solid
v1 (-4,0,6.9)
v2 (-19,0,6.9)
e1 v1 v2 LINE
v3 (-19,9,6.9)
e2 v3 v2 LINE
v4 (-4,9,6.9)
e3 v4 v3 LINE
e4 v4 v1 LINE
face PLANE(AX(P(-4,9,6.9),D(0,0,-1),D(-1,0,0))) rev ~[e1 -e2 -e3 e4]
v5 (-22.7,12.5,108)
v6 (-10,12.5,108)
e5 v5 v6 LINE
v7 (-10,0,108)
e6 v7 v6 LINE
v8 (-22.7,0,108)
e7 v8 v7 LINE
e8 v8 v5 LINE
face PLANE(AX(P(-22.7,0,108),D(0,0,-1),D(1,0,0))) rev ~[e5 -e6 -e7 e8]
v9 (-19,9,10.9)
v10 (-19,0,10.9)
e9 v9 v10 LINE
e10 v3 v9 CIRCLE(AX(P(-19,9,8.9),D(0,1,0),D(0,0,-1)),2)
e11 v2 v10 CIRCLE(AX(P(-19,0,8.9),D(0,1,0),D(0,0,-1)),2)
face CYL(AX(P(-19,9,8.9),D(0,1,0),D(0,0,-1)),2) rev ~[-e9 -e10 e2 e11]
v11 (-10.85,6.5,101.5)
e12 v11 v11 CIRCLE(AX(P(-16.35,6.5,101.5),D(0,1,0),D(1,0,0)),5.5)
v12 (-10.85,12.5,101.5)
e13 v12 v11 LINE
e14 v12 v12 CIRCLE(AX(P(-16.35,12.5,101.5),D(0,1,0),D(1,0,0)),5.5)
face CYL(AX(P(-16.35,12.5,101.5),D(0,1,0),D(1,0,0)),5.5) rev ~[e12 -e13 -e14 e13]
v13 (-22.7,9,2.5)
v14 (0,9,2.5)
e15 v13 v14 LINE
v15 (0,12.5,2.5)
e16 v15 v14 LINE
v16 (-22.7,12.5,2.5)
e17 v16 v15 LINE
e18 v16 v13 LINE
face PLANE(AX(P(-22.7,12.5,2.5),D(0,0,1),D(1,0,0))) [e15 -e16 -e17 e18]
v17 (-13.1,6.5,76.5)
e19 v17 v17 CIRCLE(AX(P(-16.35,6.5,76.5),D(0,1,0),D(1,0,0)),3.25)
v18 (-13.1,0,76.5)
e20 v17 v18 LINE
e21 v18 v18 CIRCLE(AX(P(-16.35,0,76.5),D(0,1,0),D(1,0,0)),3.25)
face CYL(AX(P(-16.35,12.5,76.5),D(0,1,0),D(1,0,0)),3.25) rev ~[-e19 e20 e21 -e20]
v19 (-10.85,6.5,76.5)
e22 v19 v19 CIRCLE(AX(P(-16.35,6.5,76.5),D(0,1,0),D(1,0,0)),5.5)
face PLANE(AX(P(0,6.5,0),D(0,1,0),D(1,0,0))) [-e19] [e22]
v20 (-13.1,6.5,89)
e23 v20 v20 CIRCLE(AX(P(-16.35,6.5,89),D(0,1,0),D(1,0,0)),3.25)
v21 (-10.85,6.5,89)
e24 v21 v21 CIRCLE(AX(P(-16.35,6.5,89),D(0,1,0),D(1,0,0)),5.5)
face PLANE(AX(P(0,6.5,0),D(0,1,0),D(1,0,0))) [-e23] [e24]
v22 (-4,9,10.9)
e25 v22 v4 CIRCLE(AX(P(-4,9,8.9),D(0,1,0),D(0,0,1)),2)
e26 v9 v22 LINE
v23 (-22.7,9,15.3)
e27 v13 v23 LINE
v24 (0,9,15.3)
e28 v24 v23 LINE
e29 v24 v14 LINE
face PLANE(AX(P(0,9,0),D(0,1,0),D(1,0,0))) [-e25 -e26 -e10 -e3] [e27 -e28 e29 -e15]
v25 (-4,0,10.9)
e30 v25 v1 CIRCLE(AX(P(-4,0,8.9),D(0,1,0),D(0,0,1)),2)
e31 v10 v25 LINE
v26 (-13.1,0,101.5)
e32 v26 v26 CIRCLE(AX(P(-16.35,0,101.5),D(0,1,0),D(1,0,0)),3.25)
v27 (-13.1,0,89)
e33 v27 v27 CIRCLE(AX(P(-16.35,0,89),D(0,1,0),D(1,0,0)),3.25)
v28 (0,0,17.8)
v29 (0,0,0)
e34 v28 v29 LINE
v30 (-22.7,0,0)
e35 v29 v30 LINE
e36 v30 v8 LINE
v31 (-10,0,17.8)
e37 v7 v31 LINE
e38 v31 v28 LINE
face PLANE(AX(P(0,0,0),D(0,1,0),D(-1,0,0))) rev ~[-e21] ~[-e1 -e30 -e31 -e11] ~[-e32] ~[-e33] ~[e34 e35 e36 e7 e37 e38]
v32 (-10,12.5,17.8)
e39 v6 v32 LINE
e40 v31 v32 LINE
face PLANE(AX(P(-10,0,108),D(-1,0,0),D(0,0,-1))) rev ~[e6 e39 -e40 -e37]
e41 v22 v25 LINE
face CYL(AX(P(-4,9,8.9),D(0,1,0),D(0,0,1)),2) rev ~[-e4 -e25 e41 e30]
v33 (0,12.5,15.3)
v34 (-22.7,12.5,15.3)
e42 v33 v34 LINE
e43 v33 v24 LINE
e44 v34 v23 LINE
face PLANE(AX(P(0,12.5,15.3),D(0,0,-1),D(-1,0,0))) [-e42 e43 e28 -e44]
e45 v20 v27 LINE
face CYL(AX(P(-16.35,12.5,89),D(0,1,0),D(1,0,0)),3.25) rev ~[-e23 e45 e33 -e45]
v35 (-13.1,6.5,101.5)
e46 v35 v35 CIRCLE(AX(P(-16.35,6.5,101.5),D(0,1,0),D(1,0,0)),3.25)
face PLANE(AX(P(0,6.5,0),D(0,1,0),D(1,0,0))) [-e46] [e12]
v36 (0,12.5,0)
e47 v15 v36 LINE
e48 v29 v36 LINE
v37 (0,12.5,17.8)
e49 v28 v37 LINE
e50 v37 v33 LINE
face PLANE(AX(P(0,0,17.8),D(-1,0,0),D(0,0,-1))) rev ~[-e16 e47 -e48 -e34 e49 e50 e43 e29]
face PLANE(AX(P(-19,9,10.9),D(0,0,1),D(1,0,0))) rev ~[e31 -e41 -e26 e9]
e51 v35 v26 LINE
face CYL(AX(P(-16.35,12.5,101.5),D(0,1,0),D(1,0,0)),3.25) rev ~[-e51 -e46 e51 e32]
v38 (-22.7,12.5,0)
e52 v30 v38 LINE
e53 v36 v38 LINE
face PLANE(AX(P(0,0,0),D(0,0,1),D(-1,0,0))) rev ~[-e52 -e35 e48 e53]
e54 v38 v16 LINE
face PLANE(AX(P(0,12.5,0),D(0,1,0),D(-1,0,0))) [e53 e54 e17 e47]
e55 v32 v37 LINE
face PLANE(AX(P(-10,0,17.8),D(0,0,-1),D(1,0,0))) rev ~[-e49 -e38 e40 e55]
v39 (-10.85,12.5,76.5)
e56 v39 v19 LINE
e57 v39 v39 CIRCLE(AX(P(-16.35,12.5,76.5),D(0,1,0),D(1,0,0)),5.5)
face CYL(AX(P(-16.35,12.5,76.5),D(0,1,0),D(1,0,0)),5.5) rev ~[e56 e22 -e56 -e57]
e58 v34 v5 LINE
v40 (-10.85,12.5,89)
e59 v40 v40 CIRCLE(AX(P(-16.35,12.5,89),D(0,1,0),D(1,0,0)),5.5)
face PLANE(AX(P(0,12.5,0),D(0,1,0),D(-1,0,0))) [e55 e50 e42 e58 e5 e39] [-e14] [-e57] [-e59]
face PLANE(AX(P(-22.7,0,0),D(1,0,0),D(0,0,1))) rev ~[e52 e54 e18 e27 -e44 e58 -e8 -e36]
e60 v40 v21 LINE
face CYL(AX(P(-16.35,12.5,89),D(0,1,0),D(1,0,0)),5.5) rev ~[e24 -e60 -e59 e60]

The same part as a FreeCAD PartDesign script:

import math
import FreeCAD as App
import Part
import Sketcher
Q = App.Units.Quantity

doc = App.newDocument("Part")
body = doc.addObject("PartDesign::Body", "Body")

# Sketch on XZ plane
sketch1 = body.newObject("Sketcher::SketchObject", "Sketch")
sketch1.AttachmentSupport = (doc.getObject("XZ_Plane"), [""])
sketch1.MapMode = "FlatFace"
sketch1.addGeometry([
    Part.LineSegment(App.Vector(0, 17.8, 0), App.Vector(0, 0, 0)),  # 0
    Part.LineSegment(App.Vector(0, 0, 0), App.Vector(-22.7, 0, 0)),  # 1
    Part.LineSegment(App.Vector(-22.7, 0, 0), App.Vector(-22.7, 108, 0)),  # 2
    Part.LineSegment(App.Vector(-22.7, 108, 0), App.Vector(-10, 108, 0)),  # 3
    Part.LineSegment(App.Vector(-10, 108, 0), App.Vector(-10, 17.8, 0)),  # 4
    Part.LineSegment(App.Vector(-10, 17.8, 0), App.Vector(0, 17.8, 0)),  # 5
], False)
sketch1.addConstraint([
    Sketcher.Constraint("Coincident", 0, 2, 1, 1),
    Sketcher.Constraint("Coincident", 1, 2, 2, 1),
    Sketcher.Constraint("Coincident", 2, 2, 3, 1),
    Sketcher.Constraint("Coincident", 3, 2, 4, 1),
    Sketcher.Constraint("Coincident", 4, 2, 5, 1),
    Sketcher.Constraint("Coincident", 5, 2, 0, 1),
    Sketcher.Constraint("Vertical", 0),
    Sketcher.Constraint("Horizontal", 1),
    Sketcher.Constraint("Vertical", 2),
    Sketcher.Constraint("Horizontal", 3),
    Sketcher.Constraint("Vertical", 4),
    Sketcher.Constraint("Horizontal", 5),
    Sketcher.Constraint("Coincident", 0, 2, -1, 1),
    Sketcher.Constraint("DistanceY", 2, 1, 2, 2, Q("108 mm")),
    Sketcher.Constraint("DistanceX", 1, 2, 1, 1, Q("22.7 mm")),
    Sketcher.Constraint("DistanceX", 3, 1, 3, 2, Q("12.7 mm")),
    Sketcher.Constraint("DistanceY", 4, 2, 4, 1, Q("90.2 mm")),
])
pad1 = body.newObject("PartDesign::Pad", "Pad")
pad1.Profile = sketch1
pad1.Length = 12.5
pad1.Reversed = True

# Sketch on XZ plane
sketch2 = body.newObject("Sketcher::SketchObject", "Sketch001")
sketch2.AttachmentSupport = (doc.getObject("XZ_Plane"), [""])
sketch2.MapMode = "FlatFace"
sketch2.AttachmentOffset = App.Placement(App.Vector(0, 0, -12.5), App.Rotation())
sketch2.addGeometry([
    Part.LineSegment(App.Vector(-22.7, 15.3, 0), App.Vector(0, 15.3, 0)),
    Part.LineSegment(App.Vector(0, 15.3, 0), App.Vector(0, 2.5, 0)),
    Part.LineSegment(App.Vector(0, 2.5, 0), App.Vector(-22.7, 2.5, 0)),
    Part.LineSegment(App.Vector(-22.7, 2.5, 0), App.Vector(-22.7, 15.3, 0)),
], False)
sketch2.addConstraint([
    Sketcher.Constraint("Coincident", 0, 2, 1, 1),
    Sketcher.Constraint("Coincident", 1, 2, 2, 1),
    Sketcher.Constraint("Coincident", 2, 2, 3, 1),
    Sketcher.Constraint("Coincident", 3, 2, 0, 1),
    Sketcher.Constraint("Horizontal", 0),
    Sketcher.Constraint("Vertical", 1),
    Sketcher.Constraint("Horizontal", 2),
    Sketcher.Constraint("Vertical", 3),
    Sketcher.Constraint("PointOnObject", 0, 2, -2),
    Sketcher.Constraint("DistanceY", 1, 2, 1, 1, Q("12.8 mm")),
    Sketcher.Constraint("DistanceX", 0, 1, 0, 2, Q("22.7 mm")),
    Sketcher.Constraint("DistanceY", -1, 1, 0, 2, Q("15.3 mm")),
])
pocket1 = body.newObject("PartDesign::Pocket", "Pocket")
pocket1.Profile = sketch2
pocket1.Length = 3.5
pocket1.Reversed = True

# Sketch on XZ plane
sketch3 = body.newObject("Sketcher::SketchObject", "Sketch002")
sketch3.AttachmentSupport = (doc.getObject("XZ_Plane"), [""])
sketch3.MapMode = "FlatFace"
sketch3.AttachmentOffset = App.Placement(App.Vector(0, 0, -9), App.Rotation())
sketch3.addGeometry([
    Part.LineSegment(App.Vector(-19, 10.9, 0), App.Vector(-4, 10.9, 0)),
    Part.ArcOfCircle(Part.Circle(App.Vector(-4, 8.9, 0), App.Vector(0, 0, 1), 2), math.radians(-90), math.radians(90)),
    Part.LineSegment(App.Vector(-4, 6.9, 0), App.Vector(-19, 6.9, 0)),
    Part.ArcOfCircle(Part.Circle(App.Vector(-19, 8.9, 0), App.Vector(0, 0, 1), 2), math.radians(90), math.radians(270)),
], False)
sketch3.addConstraint([
    Sketcher.Constraint("Tangent", 0, 2, 1, 2),
    Sketcher.Constraint("Tangent", 1, 1, 2, 1),
    Sketcher.Constraint("Tangent", 2, 2, 3, 2),
    Sketcher.Constraint("Tangent", 3, 1, 0, 1),
    Sketcher.Constraint("Horizontal", 0),
    Sketcher.Constraint("Horizontal", 2),
    Sketcher.Constraint("Radius", 1, Q("2 mm")),
    Sketcher.Constraint("DistanceX", 0, 1, 0, 2, Q("15 mm")),
    Sketcher.Constraint("DistanceX", 1, 3, -1, 1, Q("4 mm")),
    Sketcher.Constraint("DistanceY", -1, 1, 1, 3, Q("8.9 mm")),
])
pocket2 = body.newObject("PartDesign::Pocket", "Pocket001")
pocket2.Profile = sketch3
pocket2.Type = "ThroughAll"
pocket2.Reversed = True

# Sketch on XZ plane
sketch4 = body.newObject("Sketcher::SketchObject", "Sketch003")
sketch4.AttachmentSupport = (doc.getObject("XZ_Plane"), [""])
sketch4.MapMode = "FlatFace"
sketch4.AttachmentOffset = App.Placement(App.Vector(0, 0, -12.5), App.Rotation())
sketch4.addGeometry([
    Part.Circle(App.Vector(-16.35, 76.5, 0), App.Vector(0, 0, 1), 3.25),
    Part.Circle(App.Vector(-16.35, 89, 0), App.Vector(0, 0, 1), 3.25),
    Part.Circle(App.Vector(-16.35, 101.5, 0), App.Vector(0, 0, 1), 3.25),
], False)
sketch4.addConstraint([
    Sketcher.Constraint("Equal", 0, 1),
    Sketcher.Constraint("Equal", 1, 2),
    Sketcher.Constraint("Vertical", 0, 3, 1, 3),
    Sketcher.Constraint("Vertical", 1, 3, 2, 3),
    Sketcher.Constraint("Diameter", 0, Q("6.5 mm")),
    Sketcher.Constraint("DistanceY", 0, 3, 1, 3, Q("12.5 mm")),
    Sketcher.Constraint("DistanceY", 1, 3, 2, 3, Q("12.5 mm")),
    Sketcher.Constraint("DistanceY", -1, 1, 1, 3, Q("89 mm")),
    Sketcher.Constraint("DistanceX", 0, 3, -1, 1, Q("16.35 mm")),
])
pocket3 = body.newObject("PartDesign::Pocket", "Pocket002")
pocket3.Profile = sketch4
pocket3.Type = "ThroughAll"
pocket3.Reversed = True

# Sketch on XZ plane
sketch5 = body.newObject("Sketcher::SketchObject", "Sketch004")
sketch5.AttachmentSupport = (doc.getObject("XZ_Plane"), [""])
sketch5.MapMode = "FlatFace"
sketch5.AttachmentOffset = App.Placement(App.Vector(0, 0, -12.5), App.Rotation())
sketch5.addGeometry([
    Part.Circle(App.Vector(-16.35, 101.5, 0), App.Vector(0, 0, 1), 5.5),  # 0
    Part.Circle(App.Vector(-16.35, 101.5, 0), App.Vector(0, 0, 1), 3.25),  # 1
    Part.Circle(App.Vector(-16.35, 89, 0), App.Vector(0, 0, 1), 5.5),  # 2
    Part.Circle(App.Vector(-16.35, 89, 0), App.Vector(0, 0, 1), 3.25),  # 3
    Part.Circle(App.Vector(-16.35, 76.5, 0), App.Vector(0, 0, 1), 5.5),  # 4
    Part.Circle(App.Vector(-16.35, 76.5, 0), App.Vector(0, 0, 1), 3.25),  # 5
], False)
sketch5.addConstraint([
    Sketcher.Constraint("Coincident", 1, 3, 0, 3),
    Sketcher.Constraint("Coincident", 3, 3, 2, 3),
    Sketcher.Constraint("Coincident", 5, 3, 4, 3),
    Sketcher.Constraint("Equal", 0, 2),
    Sketcher.Constraint("Equal", 1, 3),
    Sketcher.Constraint("Equal", 2, 4),
    Sketcher.Constraint("Equal", 3, 5),
    Sketcher.Constraint("Vertical", 1, 3, 2, 3),
    Sketcher.Constraint("Vertical", 3, 3, 4, 3),
    Sketcher.Constraint("Diameter", 0, Q("11 mm")),
    Sketcher.Constraint("Diameter", 1, Q("6.5 mm")),
    Sketcher.Constraint("DistanceY", 2, 3, 0, 3, Q("12.5 mm")),
    Sketcher.Constraint("DistanceY", 4, 3, 2, 3, Q("12.5 mm")),
    Sketcher.Constraint("DistanceY", -1, 1, 2, 3, Q("89 mm")),
    Sketcher.Constraint("DistanceX", 0, 3, -1, 1, Q("16.35 mm")),
])
pocket4 = body.newObject("PartDesign::Pocket", "Pocket003")
pocket4.Profile = sketch5
pocket4.Length = 6
pocket4.Reversed = True

doc.recompute()
